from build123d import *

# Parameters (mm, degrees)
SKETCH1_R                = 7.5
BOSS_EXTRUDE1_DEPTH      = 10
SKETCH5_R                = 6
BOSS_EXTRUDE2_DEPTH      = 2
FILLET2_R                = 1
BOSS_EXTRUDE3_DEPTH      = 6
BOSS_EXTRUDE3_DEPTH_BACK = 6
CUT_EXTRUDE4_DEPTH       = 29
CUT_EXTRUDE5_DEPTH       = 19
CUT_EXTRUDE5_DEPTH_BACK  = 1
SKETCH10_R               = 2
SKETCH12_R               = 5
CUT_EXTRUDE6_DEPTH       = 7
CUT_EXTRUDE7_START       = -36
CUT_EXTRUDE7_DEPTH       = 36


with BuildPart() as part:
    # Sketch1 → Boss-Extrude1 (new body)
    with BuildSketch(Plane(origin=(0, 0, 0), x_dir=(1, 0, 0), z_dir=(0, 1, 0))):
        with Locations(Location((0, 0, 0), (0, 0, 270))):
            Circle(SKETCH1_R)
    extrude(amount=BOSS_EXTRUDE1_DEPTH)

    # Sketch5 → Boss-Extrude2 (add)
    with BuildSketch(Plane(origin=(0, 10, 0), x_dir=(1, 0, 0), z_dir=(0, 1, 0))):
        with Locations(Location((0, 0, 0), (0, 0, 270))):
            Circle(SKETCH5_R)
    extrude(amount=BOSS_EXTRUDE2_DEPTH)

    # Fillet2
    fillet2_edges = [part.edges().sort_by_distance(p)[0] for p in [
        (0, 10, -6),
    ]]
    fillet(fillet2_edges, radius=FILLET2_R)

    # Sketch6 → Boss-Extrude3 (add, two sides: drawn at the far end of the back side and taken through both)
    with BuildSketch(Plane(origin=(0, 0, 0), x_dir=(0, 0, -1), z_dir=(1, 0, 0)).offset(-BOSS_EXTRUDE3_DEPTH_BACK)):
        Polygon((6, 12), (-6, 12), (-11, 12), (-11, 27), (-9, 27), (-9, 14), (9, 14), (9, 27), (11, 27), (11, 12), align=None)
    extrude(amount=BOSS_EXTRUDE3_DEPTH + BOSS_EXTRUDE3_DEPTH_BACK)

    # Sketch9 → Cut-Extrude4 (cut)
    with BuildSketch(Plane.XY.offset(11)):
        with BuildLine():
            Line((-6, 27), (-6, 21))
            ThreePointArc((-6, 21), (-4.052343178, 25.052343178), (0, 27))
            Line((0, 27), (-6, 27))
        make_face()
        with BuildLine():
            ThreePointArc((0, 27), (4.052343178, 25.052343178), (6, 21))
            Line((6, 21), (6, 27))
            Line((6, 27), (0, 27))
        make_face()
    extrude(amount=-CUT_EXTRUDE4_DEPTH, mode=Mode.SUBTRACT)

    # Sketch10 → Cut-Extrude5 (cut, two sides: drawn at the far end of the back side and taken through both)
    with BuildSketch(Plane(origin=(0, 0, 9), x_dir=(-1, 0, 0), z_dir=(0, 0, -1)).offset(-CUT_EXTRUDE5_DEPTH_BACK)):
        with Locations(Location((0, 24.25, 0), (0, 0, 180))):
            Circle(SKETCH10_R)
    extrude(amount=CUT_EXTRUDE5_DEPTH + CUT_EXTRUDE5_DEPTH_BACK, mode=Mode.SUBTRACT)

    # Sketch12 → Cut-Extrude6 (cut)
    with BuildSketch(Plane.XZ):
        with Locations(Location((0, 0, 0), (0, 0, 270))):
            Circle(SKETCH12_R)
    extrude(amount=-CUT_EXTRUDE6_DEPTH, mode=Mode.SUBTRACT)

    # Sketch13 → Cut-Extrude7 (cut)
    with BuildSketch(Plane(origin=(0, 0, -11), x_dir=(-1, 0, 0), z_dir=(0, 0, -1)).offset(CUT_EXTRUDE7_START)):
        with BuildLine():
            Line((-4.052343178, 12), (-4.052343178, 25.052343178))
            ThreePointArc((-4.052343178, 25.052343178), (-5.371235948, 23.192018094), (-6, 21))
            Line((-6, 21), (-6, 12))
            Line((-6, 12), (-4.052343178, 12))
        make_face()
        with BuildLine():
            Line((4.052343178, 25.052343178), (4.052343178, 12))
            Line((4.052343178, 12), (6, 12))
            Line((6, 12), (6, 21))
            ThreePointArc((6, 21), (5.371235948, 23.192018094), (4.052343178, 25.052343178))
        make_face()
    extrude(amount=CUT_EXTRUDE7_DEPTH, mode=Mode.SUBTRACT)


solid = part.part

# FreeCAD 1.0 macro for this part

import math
import FreeCAD as App
import Part
import Sketcher
from FreeCAD import Vector


def edges_at(feature, points):
    """Names of the edges that pass closest to the given points."""
    edges = feature.Shape.Edges
    near = lambda p: min(range(len(edges)), key=lambda i: edges[i].distToShape(Part.Vertex(*p))[0])
    return sorted({f"Edge{near(p) + 1}" for p in points})

doc = App.newDocument("Part")
params = doc.addObject("Spreadsheet::Sheet", "Params")
for row, (alias, value) in enumerate([
    ("sketch1_diameter", "15 mm"),
    ("pad1_length", "10 mm"),
    ("sketch2_diameter", "12 mm"),
    ("pad2_length", "2 mm"),
    ("fillet_radius", "1 mm"),
    ("sketch3_width", "15 mm"),
    ("sketch3_width2", "13 mm"),
    ("sketch3_height", "22 mm"),
    ("sketch3_height2", "2 mm"),
    ("pad3_length", "6 mm"),
    ("pad3_length2", "6 mm"),
    ("sketch4_width", "6 mm"),
    ("pocket1_length", "29 mm"),
    ("sketch5_diameter", "4 mm"),
    ("pocket2_length", "19 mm"),
    ("pocket2_length2", "1 mm"),
    ("sketch6_diameter", "10 mm"),
    ("pocket3_length", "7 mm"),
    ("sketch7_height", "9 mm"),
    ("pocket4_length", "36 mm"),
], start=1):
    params.set(f"A{row}", alias)
    params.set(f"B{row}", "=" + value)
    params.setAlias(f"B{row}", alias)

body = doc.addObject("PartDesign::Body", "Body")

sketch1 = doc.addObject("Sketcher::SketchObject", "Sketch")
body.addObject(sketch1)
sketch1.AttachmentSupport = (doc.XZ_Plane, [""])
sketch1.MapMode = "FlatFace"
sketch1.addGeometry(Part.Circle(Vector(0, 0, 0), Vector(0, 0, 1), 8), False)
sketch1.addConstraint(Sketcher.Constraint("Coincident", 0, 3, -1, 1))
sketch1.addConstraint(Sketcher.Constraint("Diameter", 0, 15.0))
sketch1.setExpression("Constraints[1]", "Params.sketch1_diameter")
pad1 = doc.addObject("PartDesign::Pad", "Pad")
body.addObject(pad1)
pad1.Profile = sketch1
pad1.setExpression("Length", "Params.pad1_length")
pad1.Reversed = True

sketch2 = doc.addObject("Sketcher::SketchObject", "Sketch001")
body.addObject(sketch2)
sketch2.AttachmentSupport = (doc.XZ_Plane, [""])
sketch2.MapMode = "FlatFace"
sketch2.AttachmentOffset = App.Placement(Vector(0, 0, -10), App.Rotation())
sketch2.addGeometry(Part.Circle(Vector(0, 0, 0), Vector(0, 0, 1), 6), False)
sketch2.addConstraint(Sketcher.Constraint("Coincident", 0, 3, -1, 1))
sketch2.addConstraint(Sketcher.Constraint("Diameter", 0, 12.0))
sketch2.setExpression("Constraints[1]", "Params.sketch2_diameter")
pad2 = doc.addObject("PartDesign::Pad", "Pad001")
body.addObject(pad2)
pad2.Profile = sketch2
pad2.setExpression("Length", "Params.pad2_length")
pad2.Reversed = True
doc.recompute()

fillet = doc.addObject("PartDesign::Fillet", "Fillet")
body.addObject(fillet)
fillet.Base = (pad2, edges_at(pad2, [(0, 10, -6)]))
fillet.setExpression("Radius", "Params.fillet_radius")

sketch3 = doc.addObject("Sketcher::SketchObject", "Sketch002")
body.addObject(sketch3)
sketch3.AttachmentSupport = (doc.YZ_Plane, [""])
sketch3.MapMode = "FlatFace"
sketch3.addGeometry(Part.LineSegment(Vector(12, 11, 0), Vector(12, -11, 0)), False)
sketch3.addGeometry(Part.LineSegment(Vector(12, -11, 0), Vector(27, -11, 0)), False)
sketch3.addGeometry(Part.LineSegment(Vector(27, -11, 0), Vector(27, -9, 0)), False)
sketch3.addGeometry(Part.LineSegment(Vector(27, -9, 0), Vector(14, -9, 0)), False)
sketch3.addGeometry(Part.LineSegment(Vector(14, -9, 0), Vector(14, 9, 0)), False)
sketch3.addGeometry(Part.LineSegment(Vector(14, 9, 0), Vector(27, 9, 0)), False)
sketch3.addGeometry(Part.LineSegment(Vector(27, 9, 0), Vector(27, 11, 0)), False)
sketch3.addGeometry(Part.LineSegment(Vector(27, 11, 0), Vector(12, 11, 0)), False)
sketch3.addConstraint(Sketcher.Constraint("Coincident", 0, 2, 1, 1))
sketch3.addConstraint(Sketcher.Constraint("Coincident", 1, 2, 2, 1))
sketch3.addConstraint(Sketcher.Constraint("Coincident", 2, 2, 3, 1))
sketch3.addConstraint(Sketcher.Constraint("Coincident", 3, 2, 4, 1))
sketch3.addConstraint(Sketcher.Constraint("Coincident", 4, 2, 5, 1))
sketch3.addConstraint(Sketcher.Constraint("Coincident", 5, 2, 6, 1))
sketch3.addConstraint(Sketcher.Constraint("Coincident", 6, 2, 7, 1))
sketch3.addConstraint(Sketcher.Constraint("Coincident", 7, 2, 0, 1))
sketch3.addConstraint(Sketcher.Constraint("Vertical", 0))
sketch3.addConstraint(Sketcher.Constraint("Horizontal", 1))
sketch3.addConstraint(Sketcher.Constraint("Vertical", 2))
sketch3.addConstraint(Sketcher.Constraint("Horizontal", 3))
sketch3.addConstraint(Sketcher.Constraint("Vertical", 4))
sketch3.addConstraint(Sketcher.Constraint("Horizontal", 5))
sketch3.addConstraint(Sketcher.Constraint("Vertical", 6))
sketch3.addConstraint(Sketcher.Constraint("Horizontal", 7))
sketch3.addConstraint(Sketcher.Constraint("Symmetric", 2, 2, 5, 2, -1))
sketch3.addConstraint(Sketcher.Constraint("Equal", 2, 6))
sketch3.addConstraint(Sketcher.Constraint("DistanceX", 1, 1, 1, 2, 15.0))
sketch3.addConstraint(Sketcher.Constraint("DistanceX", 3, 2, 3, 1, 13.0))
sketch3.addConstraint(Sketcher.Constraint("DistanceY", 0, 2, 0, 1, 22.0))
sketch3.addConstraint(Sketcher.Constraint("DistanceY", 2, 1, 2, 2, 2.0))
sketch3.addConstraint(Sketcher.Constraint("DistanceX", -1, 1, 0, 2, 12.0))
sketch3.setExpression("Constraints[18]", "Params.sketch3_width")
sketch3.setExpression("Constraints[19]", "Params.sketch3_width2")
sketch3.setExpression("Constraints[20]", "Params.sketch3_height")
sketch3.setExpression("Constraints[21]", "Params.sketch3_height2")
pad3 = doc.addObject("PartDesign::Pad", "Pad002")
body.addObject(pad3)
pad3.Profile = sketch3
pad3.Type = "TwoLengths"
pad3.setExpression("Length", "Params.pad3_length")
pad3.setExpression("Length2", "Params.pad3_length2")

sketch4 = doc.addObject("Sketcher::SketchObject", "Sketch003")
body.addObject(sketch4)
sketch4.AttachmentSupport = (doc.XY_Plane, [""])
sketch4.MapMode = "FlatFace"
sketch4.AttachmentOffset = App.Placement(Vector(0, 0, 11), App.Rotation())
sketch4.addGeometry(Part.LineSegment(Vector(-6, 27, 0), Vector(-6, 21, 0)), False)
sketch4.addGeometry(Part.ArcOfCircle(Part.Circle(Vector(1, 20, 0), Vector(0, 0, 1), 7), math.radians(96), math.radians(174)), False)
sketch4.addGeometry(Part.LineSegment(Vector(0, 27, 0), Vector(-6, 27, 0)), False)
sketch4.addGeometry(Part.ArcOfCircle(Part.Circle(Vector(-1, 20, 0), Vector(0, 0, 1), 7), math.radians(6), math.radians(84)), False)
sketch4.addGeometry(Part.LineSegment(Vector(6, 21, 0), Vector(6, 27, 0)), False)
sketch4.addGeometry(Part.LineSegment(Vector(6, 27, 0), Vector(0, 27, 0)), False)
sketch4.addConstraint(Sketcher.Constraint("Coincident", 0, 2, 1, 2))
sketch4.addConstraint(Sketcher.Constraint("Coincident", 1, 1, 2, 1))
sketch4.addConstraint(Sketcher.Constraint("Coincident", 2, 2, 0, 1))
sketch4.addConstraint(Sketcher.Constraint("Coincident", 3, 1, 4, 1))
sketch4.addConstraint(Sketcher.Constraint("Coincident", 4, 2, 5, 1))
sketch4.addConstraint(Sketcher.Constraint("Coincident", 5, 2, 3, 2))
sketch4.addConstraint(Sketcher.Constraint("Vertical", 0))
sketch4.addConstraint(Sketcher.Constraint("Horizontal", 2))
sketch4.addConstraint(Sketcher.Constraint("Vertical", 4))
sketch4.addConstraint(Sketcher.Constraint("Horizontal", 5))
sketch4.addConstraint(Sketcher.Constraint("Coincident", 5, 2, 1, 1))
sketch4.addConstraint(Sketcher.Constraint("Equal", 1, 3))
sketch4.addConstraint(Sketcher.Constraint("Symmetric", 1, 3, 3, 3, -2))
sketch4.addConstraint(Sketcher.Constraint("Horizontal", 0, 2, 3, 1))
sketch4.addConstraint(Sketcher.Constraint("Equal", 5, 0))
sketch4.addConstraint(Sketcher.Constraint("DistanceX", 2, 2, 2, 1, 6.0))
sketch4.addConstraint(Sketcher.Constraint("DistanceY", -1, 1, 0, 2, 21.0))
sketch4.addConstraint(Sketcher.Constraint("DistanceX", 3, 3, 1, 3, 1.5))
sketch4.setExpression("Constraints[15]", "Params.sketch4_width")
pocket1 = doc.addObject("PartDesign::Pocket", "Pocket")
body.addObject(pocket1)
pocket1.Profile = sketch4
pocket1.setExpression("Length", "Params.pocket1_length")

sketch5 = doc.addObject("Sketcher::SketchObject", "Sketch004")
body.addObject(sketch5)
sketch5.AttachmentSupport = (doc.XY_Plane, [""])
sketch5.MapMode = "FlatFace"
sketch5.AttachmentOffset = App.Placement(Vector(0, 0, 9), App.Rotation())
sketch5.addGeometry(Part.Circle(Vector(0, 24.2, 0), Vector(0, 0, 1), 2), False)
sketch5.addConstraint(Sketcher.Constraint("PointOnObject", 0, 3, -2))
sketch5.addConstraint(Sketcher.Constraint("Diameter", 0, 4.0))
sketch5.addConstraint(Sketcher.Constraint("DistanceY", -1, 1, 0, 3, 24.25))
sketch5.setExpression("Constraints[1]", "Params.sketch5_diameter")
pocket2 = doc.addObject("PartDesign::Pocket", "Pocket001")
body.addObject(pocket2)
pocket2.Profile = sketch5
pocket2.Type = "TwoLengths"
pocket2.setExpression("Length", "Params.pocket2_length")
pocket2.setExpression("Length2", "Params.pocket2_length2")

sketch6 = doc.addObject("Sketcher::SketchObject", "Sketch005")
body.addObject(sketch6)
sketch6.AttachmentSupport = (doc.XZ_Plane, [""])
sketch6.MapMode = "FlatFace"
sketch6.addGeometry(Part.Circle(Vector(0, 0, 0), Vector(0, 0, 1), 5), False)
sketch6.addConstraint(Sketcher.Constraint("Coincident", 0, 3, -1, 1))
sketch6.addConstraint(Sketcher.Constraint("Diameter", 0, 10.0))
sketch6.setExpression("Constraints[1]", "Params.sketch6_diameter")
pocket3 = doc.addObject("PartDesign::Pocket", "Pocket002")
body.addObject(pocket3)
pocket3.Profile = sketch6
pocket3.setExpression("Length", "Params.pocket3_length")

sketch7 = doc.addObject("Sketcher::SketchObject", "Sketch006")
body.addObject(sketch7)
sketch7.AttachmentSupport = (doc.XY_Plane, [""])
sketch7.MapMode = "FlatFace"
sketch7.AttachmentOffset = App.Placement(Vector(0, 0, 25), App.Rotation())
sketch7.addGeometry(Part.LineSegment(Vector(4.1, 12, 0), Vector(4.1, 25.1, 0)), False)
sketch7.addGeometry(Part.ArcOfCircle(Part.Circle(Vector(-0.8, 20.2, 0), Vector(0, 0, 1), 6.8), math.radians(6), math.radians(45)), False)
sketch7.addGeometry(Part.LineSegment(Vector(6, 21, 0), Vector(6, 12, 0)), False)
sketch7.addGeometry(Part.LineSegment(Vector(6, 12, 0), Vector(4.1, 12, 0)), False)
sketch7.addGeometry(Part.LineSegment(Vector(-4.1, 25.1, 0), Vector(-4.1, 12, 0)), False)
sketch7.addGeometry(Part.LineSegment(Vector(-4.1, 12, 0), Vector(-6, 12, 0)), False)
sketch7.addGeometry(Part.LineSegment(Vector(-6, 12, 0), Vector(-6, 21, 0)), False)
sketch7.addGeometry(Part.ArcOfCircle(Part.Circle(Vector(0.8, 20.2, 0), Vector(0, 0, 1), 6.8), math.radians(135), math.radians(174)), False)
sketch7.addConstraint(Sketcher.Constraint("Coincident", 0, 2, 1, 2))
sketch7.addConstraint(Sketcher.Constraint("Coincident", 1, 1, 2, 1))
sketch7.addConstraint(Sketcher.Constraint("Coincident", 2, 2, 3, 1))
sketch7.addConstraint(Sketcher.Constraint("Coincident", 3, 2, 0, 1))
sketch7.addConstraint(Sketcher.Constraint("Coincident", 4, 2, 5, 1))
sketch7.addConstraint(Sketcher.Constraint("Coincident", 5, 2, 6, 1))
sketch7.addConstraint(Sketcher.Constraint("Coincident", 6, 2, 7, 2))
sketch7.addConstraint(Sketcher.Constraint("Coincident", 7, 1, 4, 1))
sketch7.addConstraint(Sketcher.Constraint("Vertical", 0))
sketch7.addConstraint(Sketcher.Constraint("Vertical", 2))
sketch7.addConstraint(Sketcher.Constraint("Horizontal", 3))
sketch7.addConstraint(Sketcher.Constraint("Vertical", 4))
sketch7.addConstraint(Sketcher.Constraint("Horizontal", 5))
sketch7.addConstraint(Sketcher.Constraint("Vertical", 6))
sketch7.addConstraint(Sketcher.Constraint("Equal", 1, 7))
sketch7.addConstraint(Sketcher.Constraint("Symmetric", 1, 3, 7, 3, -2))
sketch7.addConstraint(Sketcher.Constraint("Symmetric", 3, 2, 4, 2, -2))
sketch7.addConstraint(Sketcher.Constraint("Horizontal", 1, 1, 6, 2))
sketch7.addConstraint(Sketcher.Constraint("DistanceY", 2, 2, 2, 1, 9.0))
sketch7.addConstraint(Sketcher.Constraint("DistanceX", -1, 1, 1, 1, 6.0))
sketch7.addConstraint(Sketcher.Constraint("DistanceY", -1, 1, 1, 1, 21.0))
sketch7.addConstraint(Sketcher.Constraint("DistanceX", 1, 3, 7, 3, 1.5))
sketch7.addConstraint(Sketcher.Constraint("DistanceY", -1, 1, 1, 3, 20.25))
sketch7.addConstraint(Sketcher.Constraint("DistanceX", 3, 2, 3, 1, 1.947657))
sketch7.setExpression("Constraints[18]", "Params.sketch7_height")
pocket4 = doc.addObject("PartDesign::Pocket", "Pocket003")
body.addObject(pocket4)
pocket4.Profile = sketch7
pocket4.setExpression("Length", "Params.pocket4_length")

doc.recompute()
